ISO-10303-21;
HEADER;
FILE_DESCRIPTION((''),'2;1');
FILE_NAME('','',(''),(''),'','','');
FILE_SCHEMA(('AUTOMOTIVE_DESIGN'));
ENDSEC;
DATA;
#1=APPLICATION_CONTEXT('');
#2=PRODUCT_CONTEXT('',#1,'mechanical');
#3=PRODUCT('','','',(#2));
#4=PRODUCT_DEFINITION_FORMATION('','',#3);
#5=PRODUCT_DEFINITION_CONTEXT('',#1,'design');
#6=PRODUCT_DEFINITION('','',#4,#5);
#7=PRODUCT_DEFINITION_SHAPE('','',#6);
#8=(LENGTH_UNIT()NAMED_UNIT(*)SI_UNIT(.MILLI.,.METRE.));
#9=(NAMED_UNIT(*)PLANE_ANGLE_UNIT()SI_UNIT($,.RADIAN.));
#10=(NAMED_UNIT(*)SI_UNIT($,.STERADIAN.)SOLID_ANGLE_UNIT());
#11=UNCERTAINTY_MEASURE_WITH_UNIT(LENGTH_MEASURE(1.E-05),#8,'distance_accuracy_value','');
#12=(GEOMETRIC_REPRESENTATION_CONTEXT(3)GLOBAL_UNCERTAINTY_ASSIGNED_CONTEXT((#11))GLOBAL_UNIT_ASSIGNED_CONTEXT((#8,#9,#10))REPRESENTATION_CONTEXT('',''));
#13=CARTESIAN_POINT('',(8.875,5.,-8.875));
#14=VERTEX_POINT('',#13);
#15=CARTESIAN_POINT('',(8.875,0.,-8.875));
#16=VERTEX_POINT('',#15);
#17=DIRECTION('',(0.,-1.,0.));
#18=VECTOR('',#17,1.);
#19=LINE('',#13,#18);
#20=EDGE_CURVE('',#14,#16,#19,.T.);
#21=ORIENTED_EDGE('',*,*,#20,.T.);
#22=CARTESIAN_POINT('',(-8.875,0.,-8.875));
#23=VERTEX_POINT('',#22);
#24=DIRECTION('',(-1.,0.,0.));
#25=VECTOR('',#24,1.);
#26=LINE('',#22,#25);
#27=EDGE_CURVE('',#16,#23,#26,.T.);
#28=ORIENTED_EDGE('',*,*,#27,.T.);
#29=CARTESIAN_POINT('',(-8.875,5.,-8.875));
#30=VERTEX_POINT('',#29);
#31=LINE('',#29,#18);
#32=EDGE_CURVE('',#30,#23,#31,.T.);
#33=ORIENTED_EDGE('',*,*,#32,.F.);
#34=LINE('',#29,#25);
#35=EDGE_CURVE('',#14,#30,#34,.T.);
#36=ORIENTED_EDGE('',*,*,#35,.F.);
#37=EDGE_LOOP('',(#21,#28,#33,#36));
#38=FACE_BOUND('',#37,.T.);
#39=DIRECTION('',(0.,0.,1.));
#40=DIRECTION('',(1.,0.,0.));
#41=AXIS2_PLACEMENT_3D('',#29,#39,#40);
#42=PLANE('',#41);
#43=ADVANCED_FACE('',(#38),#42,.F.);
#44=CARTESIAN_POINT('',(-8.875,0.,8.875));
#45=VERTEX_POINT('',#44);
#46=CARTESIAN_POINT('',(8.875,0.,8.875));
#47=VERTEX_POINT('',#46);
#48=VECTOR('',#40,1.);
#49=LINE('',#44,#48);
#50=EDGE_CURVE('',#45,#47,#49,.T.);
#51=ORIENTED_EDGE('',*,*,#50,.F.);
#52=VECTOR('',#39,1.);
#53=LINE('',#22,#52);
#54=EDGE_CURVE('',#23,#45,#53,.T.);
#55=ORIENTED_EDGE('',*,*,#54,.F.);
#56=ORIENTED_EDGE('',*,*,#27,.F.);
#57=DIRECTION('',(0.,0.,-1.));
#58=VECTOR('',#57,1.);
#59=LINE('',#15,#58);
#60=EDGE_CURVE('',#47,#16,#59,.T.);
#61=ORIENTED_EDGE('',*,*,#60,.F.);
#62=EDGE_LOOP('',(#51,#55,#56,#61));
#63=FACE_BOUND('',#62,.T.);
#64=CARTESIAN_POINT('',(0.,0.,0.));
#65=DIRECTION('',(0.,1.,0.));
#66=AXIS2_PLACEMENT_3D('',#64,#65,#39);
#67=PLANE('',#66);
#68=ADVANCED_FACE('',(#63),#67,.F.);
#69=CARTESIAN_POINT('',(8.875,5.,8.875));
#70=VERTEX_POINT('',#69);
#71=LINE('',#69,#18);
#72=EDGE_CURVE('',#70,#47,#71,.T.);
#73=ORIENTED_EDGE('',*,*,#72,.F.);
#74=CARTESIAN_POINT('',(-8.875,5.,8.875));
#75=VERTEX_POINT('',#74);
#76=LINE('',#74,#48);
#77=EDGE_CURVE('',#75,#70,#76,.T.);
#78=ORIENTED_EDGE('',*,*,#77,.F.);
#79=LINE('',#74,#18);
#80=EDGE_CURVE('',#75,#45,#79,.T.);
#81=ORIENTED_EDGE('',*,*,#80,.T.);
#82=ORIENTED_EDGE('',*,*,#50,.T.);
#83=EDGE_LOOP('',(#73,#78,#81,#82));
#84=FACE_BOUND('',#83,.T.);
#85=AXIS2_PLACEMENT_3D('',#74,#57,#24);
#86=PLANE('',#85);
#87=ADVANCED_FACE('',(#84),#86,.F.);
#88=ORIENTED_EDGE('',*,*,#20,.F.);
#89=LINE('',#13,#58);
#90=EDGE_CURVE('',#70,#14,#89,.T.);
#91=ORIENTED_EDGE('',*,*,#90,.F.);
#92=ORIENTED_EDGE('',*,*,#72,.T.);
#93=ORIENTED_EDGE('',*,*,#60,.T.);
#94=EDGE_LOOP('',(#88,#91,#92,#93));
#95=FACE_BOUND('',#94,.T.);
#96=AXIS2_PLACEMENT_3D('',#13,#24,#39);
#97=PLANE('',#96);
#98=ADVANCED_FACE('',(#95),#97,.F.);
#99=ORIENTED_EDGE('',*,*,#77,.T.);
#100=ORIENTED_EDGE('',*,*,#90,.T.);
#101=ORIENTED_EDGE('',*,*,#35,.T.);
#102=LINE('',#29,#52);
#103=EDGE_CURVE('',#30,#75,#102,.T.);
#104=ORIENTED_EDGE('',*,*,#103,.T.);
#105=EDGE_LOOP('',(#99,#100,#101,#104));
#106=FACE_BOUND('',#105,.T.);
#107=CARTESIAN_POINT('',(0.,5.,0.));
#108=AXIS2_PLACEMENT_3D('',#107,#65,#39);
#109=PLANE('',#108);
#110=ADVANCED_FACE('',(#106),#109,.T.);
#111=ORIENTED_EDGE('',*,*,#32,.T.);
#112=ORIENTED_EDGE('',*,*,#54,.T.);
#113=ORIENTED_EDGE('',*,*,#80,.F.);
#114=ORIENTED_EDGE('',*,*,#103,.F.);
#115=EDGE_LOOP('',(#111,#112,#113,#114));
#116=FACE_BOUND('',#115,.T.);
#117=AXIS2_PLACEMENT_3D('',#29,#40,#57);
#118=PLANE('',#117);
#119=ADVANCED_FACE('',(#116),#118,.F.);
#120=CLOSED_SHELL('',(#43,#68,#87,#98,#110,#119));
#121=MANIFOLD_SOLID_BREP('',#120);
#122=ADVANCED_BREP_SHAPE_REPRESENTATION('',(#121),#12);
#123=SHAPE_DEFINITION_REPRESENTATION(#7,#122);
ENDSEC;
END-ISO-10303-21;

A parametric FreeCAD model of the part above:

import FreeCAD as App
import Part
import Sketcher

V = App.Vector
Q = App.Units.Quantity


def add_polygon(sketch, points):
    """Adds a closed chain of lines whose ends are joined by coincident constraints."""
    first, n = sketch.GeometryCount, len(points)
    for a, b in zip(points, points[1:] + points[:1]):
        sketch.addGeometry(Part.LineSegment(App.Vector(*a, 0), App.Vector(*b, 0)), False)
    for i in range(n):
        sketch.addConstraint(Sketcher.Constraint("Coincident", first + i, 2, first + (i + 1) % n, 1))

doc = App.newDocument("Part")
body = doc.addObject("PartDesign::Body", "Body")

sketch1 = body.newObject("Sketcher::SketchObject", "Sketch")
sketch1.AttachmentSupport = (doc.getObject("XZ_Plane"), [""])
sketch1.MapMode = "FlatFace"
add_polygon(sketch1, [(-8.875, -8.875), (-8.875, 8.875), (8.875, 8.875), (8.875, -8.875)])
sketch1.addConstraint(Sketcher.Constraint("Vertical", 0))
sketch1.addConstraint(Sketcher.Constraint("Horizontal", 1))
sketch1.addConstraint(Sketcher.Constraint("Vertical", 2))
sketch1.addConstraint(Sketcher.Constraint("Horizontal", 3))
sketch1.addConstraint(Sketcher.Constraint("Symmetric", 0, 2, 2, 2, -1, 1))
sketch1.addConstraint(Sketcher.Constraint("Equal", 3, 0))
sketch1.addConstraint(Sketcher.Constraint("DistanceX", 1, 1, 1, 2, Q("17.75 mm")))
pad1 = body.newObject("PartDesign::Pad", "Pad")
pad1.Profile = sketch1
pad1.Length = 5
pad1.Reversed = True

doc.recompute()
